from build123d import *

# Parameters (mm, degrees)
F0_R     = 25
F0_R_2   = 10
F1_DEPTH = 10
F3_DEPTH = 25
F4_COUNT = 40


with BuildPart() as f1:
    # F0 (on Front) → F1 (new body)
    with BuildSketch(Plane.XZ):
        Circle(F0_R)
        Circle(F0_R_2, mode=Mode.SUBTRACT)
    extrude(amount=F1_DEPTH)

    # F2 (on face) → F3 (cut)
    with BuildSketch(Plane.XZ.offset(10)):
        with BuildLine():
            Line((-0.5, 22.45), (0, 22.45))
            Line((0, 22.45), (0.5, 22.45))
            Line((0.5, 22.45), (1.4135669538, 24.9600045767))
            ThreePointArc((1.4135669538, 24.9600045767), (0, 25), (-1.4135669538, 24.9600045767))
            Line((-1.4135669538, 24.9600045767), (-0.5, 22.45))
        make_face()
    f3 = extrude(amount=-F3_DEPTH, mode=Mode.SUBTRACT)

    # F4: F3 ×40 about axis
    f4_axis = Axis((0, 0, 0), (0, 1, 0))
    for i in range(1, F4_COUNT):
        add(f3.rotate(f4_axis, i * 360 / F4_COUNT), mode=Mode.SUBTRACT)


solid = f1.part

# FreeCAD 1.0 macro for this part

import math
import FreeCAD as App
import Part
import Sketcher
from FreeCAD import Vector
Q = App.Units.Quantity

doc = App.newDocument("Part")
body = doc.addObject("PartDesign::Body", "Body")

# Sketch on XZ plane
sketch1 = body.newObject("Sketcher::SketchObject", "Sketch")
sketch1.AttachmentSupport = (doc.getObject("XZ_Plane"), [""])
sketch1.MapMode = "FlatFace"
sketch1.addGeometry([
    Part.Circle(Vector(0, 0, 0), Vector(0, 0, 1), 25),
    Part.Circle(Vector(0, 0, 0), Vector(0, 0, 1), 10),
], False)
sketch1.addConstraint([
    Sketcher.Constraint("Coincident", 0, 3, -1, 1),
    Sketcher.Constraint("Coincident", 1, 3, -1, 1),
    Sketcher.Constraint("Diameter", 0, 50.0),
    Sketcher.Constraint("Diameter", 1, 20.0),
])
pad1 = body.newObject("PartDesign::Pad", "Pad")
pad1.Profile = sketch1
pad1.Length = 10

# Sketch on XZ plane
sketch2 = body.newObject("Sketcher::SketchObject", "Sketch001")
sketch2.AttachmentSupport = (doc.getObject("XZ_Plane"), [""])
sketch2.MapMode = "FlatFace"
sketch2.AttachmentOffset = App.Placement(Vector(0, 0, 10), App.Rotation())
sketch2.addGeometry([
    Part.LineSegment(Vector(-0.5, 22.4, 0), Vector(0.5, 22.4, 0)),
    Part.LineSegment(Vector(0.5, 22.4, 0), Vector(1.4, 25, 0)),
    Part.ArcOfCircle(Part.Circle(Vector(0, 0, 0), Vector(0, 0, 1), 25), math.radians(86.76), math.radians(93.24)),
    Part.LineSegment(Vector(-1.4, 25, 0), Vector(-0.5, 22.4, 0)),
], False)
sketch2.addConstraint([
    Sketcher.Constraint("Coincident", 0, 2, 1, 1),
    Sketcher.Constraint("Coincident", 1, 2, 2, 1),
    Sketcher.Constraint("Coincident", 2, 2, 3, 1),
    Sketcher.Constraint("Coincident", 3, 2, 0, 1),
    Sketcher.Constraint("Horizontal", 0),
    Sketcher.Constraint("Coincident", 2, 3, -1, 1),
    Sketcher.Constraint("Horizontal", 1, 2, 2, 2),
    Sketcher.Constraint("Equal", 1, 3),
    Sketcher.Constraint("Radius", 2, 25.0),
    Sketcher.Constraint("DistanceX", 0, 1, 0, 2, 1.0),
    Sketcher.Constraint("Angle", 1, Q("70 deg")),
    Sketcher.Constraint("DistanceY", -1, 1, 0, 2, 22.45),
])
pocket1 = body.newObject("PartDesign::Pocket", "Pocket")
pocket1.Profile = sketch2
pocket1.Length = 25
doc.recompute()

polarpattern = body.newObject("PartDesign::PolarPattern", "PolarPattern")
polarpattern.Originals = [pocket1]
polarpattern.Axis = (doc.getObject("Y_Axis"), [""])
polarpattern.Angle = 360
polarpattern.Occurrences = 40
body.Tip = polarpattern

doc.recompute()
